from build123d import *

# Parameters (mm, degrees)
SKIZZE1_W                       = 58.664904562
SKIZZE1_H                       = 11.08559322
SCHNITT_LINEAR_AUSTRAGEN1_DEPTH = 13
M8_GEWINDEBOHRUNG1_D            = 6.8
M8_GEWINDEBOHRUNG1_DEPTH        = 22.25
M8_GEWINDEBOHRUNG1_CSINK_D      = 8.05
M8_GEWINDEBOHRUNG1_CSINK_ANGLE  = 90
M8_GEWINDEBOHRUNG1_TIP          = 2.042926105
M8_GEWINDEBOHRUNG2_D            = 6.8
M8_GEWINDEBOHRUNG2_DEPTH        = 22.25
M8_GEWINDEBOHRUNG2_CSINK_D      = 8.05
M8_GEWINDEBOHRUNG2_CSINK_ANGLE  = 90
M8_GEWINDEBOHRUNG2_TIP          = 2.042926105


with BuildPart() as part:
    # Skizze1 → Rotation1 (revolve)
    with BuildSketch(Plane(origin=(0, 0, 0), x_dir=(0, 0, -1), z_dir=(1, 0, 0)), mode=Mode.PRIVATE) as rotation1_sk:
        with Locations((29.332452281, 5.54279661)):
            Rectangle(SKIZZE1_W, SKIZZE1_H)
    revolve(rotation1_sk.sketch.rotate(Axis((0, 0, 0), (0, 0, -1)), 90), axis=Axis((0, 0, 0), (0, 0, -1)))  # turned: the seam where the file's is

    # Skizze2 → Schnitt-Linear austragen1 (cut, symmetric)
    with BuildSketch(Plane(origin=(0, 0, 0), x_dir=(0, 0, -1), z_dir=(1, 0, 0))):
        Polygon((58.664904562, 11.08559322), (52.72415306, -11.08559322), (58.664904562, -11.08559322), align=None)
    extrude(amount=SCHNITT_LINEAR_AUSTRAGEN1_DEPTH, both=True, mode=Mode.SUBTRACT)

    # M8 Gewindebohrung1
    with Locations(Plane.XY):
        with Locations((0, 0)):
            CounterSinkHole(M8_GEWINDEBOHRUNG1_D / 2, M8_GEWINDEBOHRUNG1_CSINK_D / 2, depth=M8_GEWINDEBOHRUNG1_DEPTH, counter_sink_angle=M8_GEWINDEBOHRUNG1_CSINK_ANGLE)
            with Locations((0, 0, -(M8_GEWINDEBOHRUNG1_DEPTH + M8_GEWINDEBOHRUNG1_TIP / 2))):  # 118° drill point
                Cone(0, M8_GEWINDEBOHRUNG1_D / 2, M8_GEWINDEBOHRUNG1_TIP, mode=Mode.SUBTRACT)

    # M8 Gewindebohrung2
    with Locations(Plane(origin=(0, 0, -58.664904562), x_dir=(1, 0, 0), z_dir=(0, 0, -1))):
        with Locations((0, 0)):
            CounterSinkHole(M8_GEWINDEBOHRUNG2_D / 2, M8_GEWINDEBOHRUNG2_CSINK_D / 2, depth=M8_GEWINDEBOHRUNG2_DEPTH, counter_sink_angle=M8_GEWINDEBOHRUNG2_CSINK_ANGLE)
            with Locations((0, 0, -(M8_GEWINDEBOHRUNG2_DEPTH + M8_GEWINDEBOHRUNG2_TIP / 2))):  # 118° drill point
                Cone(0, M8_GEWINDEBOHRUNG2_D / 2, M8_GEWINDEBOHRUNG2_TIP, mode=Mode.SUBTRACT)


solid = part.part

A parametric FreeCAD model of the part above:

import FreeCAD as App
import Part
import Sketcher
Q = App.Units.Quantity

doc = App.newDocument("Part")
body = doc.addObject("PartDesign::Body", "Body")

# Sketch on YZ plane
sketch1 = body.newObject("Sketcher::SketchObject", "Sketch")
sketch1.AttachmentSupport = (doc.getObject("YZ_Plane"), [""])
sketch1.MapMode = "FlatFace"
sketch1.addGeometry([
    Part.LineSegment(App.Vector(11, 0, 0), App.Vector(0, 0, 0)),
    Part.LineSegment(App.Vector(0, 0, 0), App.Vector(0, -59, 0)),
    Part.LineSegment(App.Vector(0, -59, 0), App.Vector(11, -59, 0)),
    Part.LineSegment(App.Vector(11, -59, 0), App.Vector(11, 0, 0)),
], False)
sketch1.addConstraint([
    Sketcher.Constraint("Coincident", 0, 2, 1, 1),
    Sketcher.Constraint("Coincident", 1, 2, 2, 1),
    Sketcher.Constraint("Coincident", 2, 2, 3, 1),
    Sketcher.Constraint("Coincident", 3, 2, 0, 1),
    Sketcher.Constraint("Horizontal", 0),
    Sketcher.Constraint("Vertical", 1),
    Sketcher.Constraint("Horizontal", 2),
    Sketcher.Constraint("Vertical", 3),
    Sketcher.Constraint("Coincident", 0, 2, -1, 1),
    Sketcher.Constraint("DistanceX", 0, 2, 0, 1, 11.085593),
    Sketcher.Constraint("DistanceY", 1, 2, 1, 1, 58.664905),
])
revolution = body.newObject("PartDesign::Revolution", "Revolution")
revolution.Profile = sketch1
revolution.ReferenceAxis = (sketch1, ["V_Axis"])
revolution.Angle = 360

# Sketch on YZ plane
sketch2 = body.newObject("Sketcher::SketchObject", "Sketch001")
sketch2.AttachmentSupport = (doc.getObject("YZ_Plane"), [""])
sketch2.MapMode = "FlatFace"
sketch2.addGeometry([
    Part.LineSegment(App.Vector(11, -59, 0), App.Vector(-11, -53, 0)),
    Part.LineSegment(App.Vector(-11, -53, 0), App.Vector(-11, -59, 0)),
    Part.LineSegment(App.Vector(-11, -59, 0), App.Vector(11, -59, 0)),
], False)
sketch2.addConstraint([
    Sketcher.Constraint("Coincident", 0, 2, 1, 1),
    Sketcher.Constraint("Coincident", 1, 2, 2, 1),
    Sketcher.Constraint("Coincident", 2, 2, 0, 1),
    Sketcher.Constraint("Vertical", 1),
    Sketcher.Constraint("Horizontal", 2),
    Sketcher.Constraint("Angle", 0, Q("165 deg")),
    Sketcher.Constraint("Distance", 0, 22.953301),
    Sketcher.Constraint("DistanceX", 0, 2, -1, 1, 11.085593),
    Sketcher.Constraint("DistanceY", 0, 2, -1, 1, 52.724153),
])
pocket1 = body.newObject("PartDesign::Pocket", "Pocket")
pocket1.Profile = sketch2
pocket1.Length = 26
pocket1.Midplane = True

# Sketch on XY plane
sketch3 = body.newObject("Sketcher::SketchObject", "Sketch002")
sketch3.AttachmentSupport = (doc.getObject("XY_Plane"), [""])
sketch3.MapMode = "FlatFace"
sketch3.addGeometry(Part.Circle(App.Vector(0, 0, 0), App.Vector(0, 0, 1), 3.4), False)
sketch3.addConstraint([
    Sketcher.Constraint("Coincident", 0, 3, -1, 1),
    Sketcher.Constraint("Diameter", 0, 6.8),
])
doc.recompute()
hole = body.newObject("PartDesign::Hole", "Hole")
hole.Profile = sketch3
hole.ThreadType = "None"
hole.Diameter = 6.8
hole.DepthType = "Dimension"
hole.Depth = 22.25
hole.DrillPoint = "Angled"
hole.DrillPointAngle = 118
hole.HoleCutType = "Countersink"
hole.HoleCutDiameter = 8.05
hole.HoleCutCountersinkAngle = 90

# Sketch on XY plane
sketch4 = body.newObject("Sketcher::SketchObject", "Sketch003")
sketch4.AttachmentSupport = (doc.getObject("XY_Plane"), [""])
sketch4.MapMode = "FlatFace"
sketch4.AttachmentOffset = App.Placement(App.Vector(0, 0, -58.664905), App.Rotation())
sketch4.addGeometry(Part.Circle(App.Vector(0, 0, 0), App.Vector(0, 0, 1), 3.4), False)
sketch4.addConstraint([
    Sketcher.Constraint("Coincident", 0, 3, -1, 1),
    Sketcher.Constraint("Diameter", 0, 6.8),
])
doc.recompute()
hole2 = body.newObject("PartDesign::Hole", "Hole001")
hole2.Profile = sketch4
hole2.ThreadType = "None"
hole2.Diameter = 6.8
hole2.DepthType = "Dimension"
hole2.Depth = 22.25
hole2.DrillPoint = "Angled"
hole2.DrillPointAngle = 118
hole2.HoleCutType = "Countersink"
hole2.HoleCutDiameter = 8.05
hole2.HoleCutCountersinkAngle = 90
hole2.Reversed = True

doc.recompute()
